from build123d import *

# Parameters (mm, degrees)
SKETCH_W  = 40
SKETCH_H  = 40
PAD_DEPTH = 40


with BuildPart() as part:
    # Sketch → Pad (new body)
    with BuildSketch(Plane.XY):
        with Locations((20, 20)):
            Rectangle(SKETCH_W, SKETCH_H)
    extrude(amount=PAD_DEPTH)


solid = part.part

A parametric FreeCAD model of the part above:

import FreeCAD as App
import Part
import Sketcher
from FreeCAD import Vector

doc = App.newDocument("Part")
params = doc.addObject("Spreadsheet::Sheet", "Params")
for row, (alias, value) in enumerate([
    ("sketch1_width", "40 mm"),
    ("pad1_length", "40 mm"),
], start=1):
    params.set(f"A{row}", alias)
    params.set(f"B{row}", "=" + value)
    params.setAlias(f"B{row}", alias)

body = doc.addObject("PartDesign::Body", "Body")

sketch1 = doc.addObject("Sketcher::SketchObject", "Sketch")
body.addObject(sketch1)
sketch1.AttachmentSupport = (doc.XY_Plane, [""])
sketch1.MapMode = "FlatFace"
sketch1.addGeometry([
    Part.LineSegment(Vector(0, 40, 0), Vector(0, 0, 0)),
    Part.LineSegment(Vector(0, 0, 0), Vector(40, 0, 0)),
    Part.LineSegment(Vector(40, 0, 0), Vector(40, 40, 0)),
    Part.LineSegment(Vector(40, 40, 0), Vector(0, 40, 0)),
], False)
sketch1.addConstraint([
    Sketcher.Constraint("Coincident", 0, 2, 1, 1),
    Sketcher.Constraint("Coincident", 1, 2, 2, 1),
    Sketcher.Constraint("Coincident", 2, 2, 3, 1),
    Sketcher.Constraint("Coincident", 3, 2, 0, 1),
    Sketcher.Constraint("Vertical", 0),
    Sketcher.Constraint("Horizontal", 1),
    Sketcher.Constraint("Vertical", 2),
    Sketcher.Constraint("Horizontal", 3),
    Sketcher.Constraint("Coincident", 0, 2, -1, 1),
    Sketcher.Constraint("Equal", 3, 0),
    Sketcher.Constraint("DistanceX", 1, 1, 1, 2, 40.0),
])
sketch1.setExpression("Constraints[10]", "Params.sketch1_width")
pad1 = doc.addObject("PartDesign::Pad", "Pad")
body.addObject(pad1)
pad1.Profile = sketch1
pad1.setExpression("Length", "Params.pad1_length")

doc.recompute()
